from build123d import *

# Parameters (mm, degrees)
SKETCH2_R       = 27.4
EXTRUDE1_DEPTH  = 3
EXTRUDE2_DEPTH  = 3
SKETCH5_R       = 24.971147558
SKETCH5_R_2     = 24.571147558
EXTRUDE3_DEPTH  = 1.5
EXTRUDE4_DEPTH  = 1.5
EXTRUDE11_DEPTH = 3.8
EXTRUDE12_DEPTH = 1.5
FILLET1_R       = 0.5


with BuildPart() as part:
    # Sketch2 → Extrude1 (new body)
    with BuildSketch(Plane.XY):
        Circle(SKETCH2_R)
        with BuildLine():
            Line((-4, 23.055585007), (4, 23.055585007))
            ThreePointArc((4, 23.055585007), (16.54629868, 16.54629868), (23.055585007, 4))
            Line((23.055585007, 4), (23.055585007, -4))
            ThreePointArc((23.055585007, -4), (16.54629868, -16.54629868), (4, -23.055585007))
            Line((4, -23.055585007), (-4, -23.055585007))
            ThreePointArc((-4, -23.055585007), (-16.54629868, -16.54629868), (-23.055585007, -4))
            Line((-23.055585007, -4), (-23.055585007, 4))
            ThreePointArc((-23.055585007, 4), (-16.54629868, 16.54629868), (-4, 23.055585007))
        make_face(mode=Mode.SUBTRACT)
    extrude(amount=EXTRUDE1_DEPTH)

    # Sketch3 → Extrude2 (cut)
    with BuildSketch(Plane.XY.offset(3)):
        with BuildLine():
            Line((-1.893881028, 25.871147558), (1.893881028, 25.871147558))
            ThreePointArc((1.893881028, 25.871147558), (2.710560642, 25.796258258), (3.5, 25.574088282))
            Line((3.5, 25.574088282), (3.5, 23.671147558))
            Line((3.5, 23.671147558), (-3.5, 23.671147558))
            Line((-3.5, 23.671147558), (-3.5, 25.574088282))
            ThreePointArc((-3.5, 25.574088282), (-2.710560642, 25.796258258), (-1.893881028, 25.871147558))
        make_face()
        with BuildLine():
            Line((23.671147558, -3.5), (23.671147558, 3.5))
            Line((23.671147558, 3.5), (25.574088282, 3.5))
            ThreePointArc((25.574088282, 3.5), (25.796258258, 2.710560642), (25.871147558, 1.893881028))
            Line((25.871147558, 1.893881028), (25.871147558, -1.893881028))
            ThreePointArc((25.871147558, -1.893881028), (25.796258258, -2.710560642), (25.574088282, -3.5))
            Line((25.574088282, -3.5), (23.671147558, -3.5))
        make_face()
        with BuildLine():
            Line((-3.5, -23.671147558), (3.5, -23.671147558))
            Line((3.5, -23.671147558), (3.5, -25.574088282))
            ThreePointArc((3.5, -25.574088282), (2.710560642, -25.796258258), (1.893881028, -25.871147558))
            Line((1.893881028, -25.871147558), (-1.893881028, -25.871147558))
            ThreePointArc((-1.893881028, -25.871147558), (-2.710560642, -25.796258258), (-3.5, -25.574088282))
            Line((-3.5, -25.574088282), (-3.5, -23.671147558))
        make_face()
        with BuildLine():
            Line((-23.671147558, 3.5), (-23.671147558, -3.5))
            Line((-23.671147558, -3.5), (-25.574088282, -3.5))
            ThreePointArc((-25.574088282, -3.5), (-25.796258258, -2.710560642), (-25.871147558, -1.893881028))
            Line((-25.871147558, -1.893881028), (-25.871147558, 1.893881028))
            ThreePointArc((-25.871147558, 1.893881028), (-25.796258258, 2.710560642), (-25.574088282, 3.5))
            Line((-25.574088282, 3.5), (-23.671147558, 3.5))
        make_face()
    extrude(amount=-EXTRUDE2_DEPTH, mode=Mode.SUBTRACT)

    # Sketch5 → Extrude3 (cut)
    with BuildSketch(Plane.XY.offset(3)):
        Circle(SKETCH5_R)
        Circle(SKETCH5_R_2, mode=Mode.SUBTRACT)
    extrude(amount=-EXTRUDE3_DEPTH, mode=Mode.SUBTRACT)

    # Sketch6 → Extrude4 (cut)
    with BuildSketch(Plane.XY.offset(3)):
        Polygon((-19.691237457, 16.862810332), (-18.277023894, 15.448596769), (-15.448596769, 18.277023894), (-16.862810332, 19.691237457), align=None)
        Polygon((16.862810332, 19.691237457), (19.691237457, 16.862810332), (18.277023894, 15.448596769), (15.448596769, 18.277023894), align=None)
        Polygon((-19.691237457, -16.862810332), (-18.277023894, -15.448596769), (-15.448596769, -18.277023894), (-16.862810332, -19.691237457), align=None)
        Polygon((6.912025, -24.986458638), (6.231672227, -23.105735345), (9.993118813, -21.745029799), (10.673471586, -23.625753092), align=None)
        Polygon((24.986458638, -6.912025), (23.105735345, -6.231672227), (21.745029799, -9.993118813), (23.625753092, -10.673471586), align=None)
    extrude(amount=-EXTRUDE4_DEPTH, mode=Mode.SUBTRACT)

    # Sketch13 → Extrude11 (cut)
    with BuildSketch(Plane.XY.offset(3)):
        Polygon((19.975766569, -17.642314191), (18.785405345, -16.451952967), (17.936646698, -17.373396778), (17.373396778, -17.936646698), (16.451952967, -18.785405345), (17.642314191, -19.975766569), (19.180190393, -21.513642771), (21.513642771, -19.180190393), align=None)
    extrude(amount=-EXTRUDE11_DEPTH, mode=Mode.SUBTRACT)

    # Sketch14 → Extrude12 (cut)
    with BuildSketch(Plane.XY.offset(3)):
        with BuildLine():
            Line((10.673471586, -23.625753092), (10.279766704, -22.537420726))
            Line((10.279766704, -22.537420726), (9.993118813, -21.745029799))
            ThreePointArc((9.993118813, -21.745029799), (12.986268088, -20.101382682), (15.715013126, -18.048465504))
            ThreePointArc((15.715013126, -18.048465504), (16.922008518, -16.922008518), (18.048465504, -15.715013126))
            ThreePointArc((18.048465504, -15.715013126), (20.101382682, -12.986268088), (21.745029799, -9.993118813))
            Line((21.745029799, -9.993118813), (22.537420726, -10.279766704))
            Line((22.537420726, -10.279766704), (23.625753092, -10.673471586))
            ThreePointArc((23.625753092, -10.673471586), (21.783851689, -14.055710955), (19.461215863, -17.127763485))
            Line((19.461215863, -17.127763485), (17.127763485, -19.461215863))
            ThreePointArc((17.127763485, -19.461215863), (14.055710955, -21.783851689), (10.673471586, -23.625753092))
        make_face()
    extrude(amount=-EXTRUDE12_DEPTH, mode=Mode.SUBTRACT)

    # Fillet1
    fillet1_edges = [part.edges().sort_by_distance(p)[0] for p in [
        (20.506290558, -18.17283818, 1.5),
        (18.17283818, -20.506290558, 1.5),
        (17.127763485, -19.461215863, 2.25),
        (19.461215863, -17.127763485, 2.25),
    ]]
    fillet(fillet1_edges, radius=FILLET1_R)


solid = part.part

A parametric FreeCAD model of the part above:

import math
import FreeCAD as App
import Part
import Sketcher
Q = App.Units.Quantity


def edges_at(feature, points):
    """Names of the edges that pass closest to the given points."""
    edges = feature.Shape.Edges
    near = lambda p: min(range(len(edges)), key=lambda i: edges[i].distToShape(Part.Vertex(*p))[0])
    return sorted({f"Edge{near(p) + 1}" for p in points})

doc = App.newDocument("Part")
params = doc.addObject("Spreadsheet::Sheet", "Params")
for row, (alias, value) in enumerate([
    ("sketch1_diameter", "54.8 mm"),
    ("sketch1_radius", "23.4 mm"),
    ("sketch1_width", "8 mm"),
    ("pad1_length", "3 mm"),
    ("sketch2_width", "7 mm"),
    ("pocket1_length", "3 mm"),
    ("pocket2_length", "1.5 mm"),
    ("sketch4_length", "2 mm"),
    ("sketch4_length2", "4 mm"),
    ("pocket3_length", "1.5 mm"),
    ("sketch5_length", "3.3 mm"),
    ("pocket4_length", "3.8 mm"),
    ("sketch6_length", "3.3 mm"),
    ("pocket5_length", "1.5 mm"),
    ("fillet_radius", "0.5 mm"),
], start=1):
    params.set(f"A{row}", alias)
    params.set(f"B{row}", "=" + value)
    params.setAlias(f"B{row}", alias)

body = doc.addObject("PartDesign::Body", "Body")

# Sketch on XY plane
sketch1 = body.newObject("Sketcher::SketchObject", "Sketch")
sketch1.AttachmentSupport = (doc.getObject("XY_Plane"), [""])
sketch1.MapMode = "FlatFace"
sketch1.addGeometry(Part.Circle(App.Vector(0, 0, 0), App.Vector(0, 0, 1), 27), False)
sketch1.addGeometry(Part.ArcOfCircle(Part.Circle(App.Vector(0, 0, 0), App.Vector(0, 0, 1), 23), math.radians(100), math.radians(170)), False)
sketch1.addGeometry(Part.LineSegment(App.Vector(-4, 23, 0), App.Vector(4, 23, 0)), False)
sketch1.addGeometry(Part.ArcOfCircle(Part.Circle(App.Vector(0, 0, 0), App.Vector(0, 0, 1), 23), math.radians(10), math.radians(80)), False)
sketch1.addGeometry(Part.LineSegment(App.Vector(23, 4, 0), App.Vector(23, -4, 0)), False)
sketch1.addGeometry(Part.ArcOfCircle(Part.Circle(App.Vector(0, 0, 0), App.Vector(0, 0, 1), 23), math.radians(-80), math.radians(-10)), False)
sketch1.addGeometry(Part.LineSegment(App.Vector(4, -23, 0), App.Vector(-4, -23, 0)), False)
sketch1.addGeometry(Part.ArcOfCircle(Part.Circle(App.Vector(0, 0, 0), App.Vector(0, 0, 1), 23), math.radians(-170), math.radians(-100)), False)
sketch1.addGeometry(Part.LineSegment(App.Vector(-23, -4, 0), App.Vector(-23, 4, 0)), False)
sketch1.addConstraint(Sketcher.Constraint("Coincident", 1, 1, 2, 1))
sketch1.addConstraint(Sketcher.Constraint("Coincident", 2, 2, 3, 2))
sketch1.addConstraint(Sketcher.Constraint("Coincident", 3, 1, 4, 1))
sketch1.addConstraint(Sketcher.Constraint("Coincident", 4, 2, 5, 2))
sketch1.addConstraint(Sketcher.Constraint("Coincident", 5, 1, 6, 1))
sketch1.addConstraint(Sketcher.Constraint("Coincident", 6, 2, 7, 2))
sketch1.addConstraint(Sketcher.Constraint("Coincident", 7, 1, 8, 1))
sketch1.addConstraint(Sketcher.Constraint("Coincident", 8, 2, 1, 2))
sketch1.addConstraint(Sketcher.Constraint("Horizontal", 2))
sketch1.addConstraint(Sketcher.Constraint("Vertical", 4))
sketch1.addConstraint(Sketcher.Constraint("Horizontal", 6))
sketch1.addConstraint(Sketcher.Constraint("Vertical", 8))
sketch1.addConstraint(Sketcher.Constraint("Coincident", 0, 3, -1, 1))
sketch1.addConstraint(Sketcher.Constraint("Coincident", 1, 3, -1, 1))
sketch1.addConstraint(Sketcher.Constraint("Coincident", 3, 3, -1, 1))
sketch1.addConstraint(Sketcher.Constraint("Coincident", 5, 3, -1, 1))
sketch1.addConstraint(Sketcher.Constraint("Coincident", 7, 3, -1, 1))
sketch1.addConstraint(Sketcher.Constraint("Equal", 1, 3))
sketch1.addConstraint(Sketcher.Constraint("Equal", 3, 5))
sketch1.addConstraint(Sketcher.Constraint("Equal", 5, 7))
sketch1.addConstraint(Sketcher.Constraint("Horizontal", 4, 2, 7, 1))
sketch1.addConstraint(Sketcher.Constraint("Vertical", 2, 2, 5, 1))
sketch1.addConstraint(Sketcher.Constraint("Equal", 6, 4))
sketch1.addConstraint(Sketcher.Constraint("Diameter", 0, Q("54.8 mm")))
sketch1.addConstraint(Sketcher.Constraint("Radius", 1, Q("23.4 mm")))
sketch1.addConstraint(Sketcher.Constraint("DistanceX", 2, 1, 2, 2, Q("8 mm")))
sketch1.setExpression("Constraints[23]", "Params.sketch1_diameter")
sketch1.setExpression("Constraints[24]", "Params.sketch1_radius")
sketch1.setExpression("Constraints[25]", "Params.sketch1_width")
pad1 = body.newObject("PartDesign::Pad", "Pad")
pad1.Profile = sketch1
pad1.setExpression("Length", "Params.pad1_length")

# Sketch on XY plane
sketch2 = body.newObject("Sketcher::SketchObject", "Sketch001")
sketch2.AttachmentSupport = (doc.getObject("XY_Plane"), [""])
sketch2.MapMode = "FlatFace"
sketch2.AttachmentOffset = App.Placement(App.Vector(0, 0, 3), App.Rotation())
sketch2.addGeometry(Part.LineSegment(App.Vector(1.9, 25.9, 0), App.Vector(-1.9, 25.9, 0)), False)
sketch2.addGeometry(Part.ArcOfCircle(Part.Circle(App.Vector(-1.9, 21.4, 0), App.Vector(0, 0, 1), 4.5), math.radians(90), math.radians(111)), False)
sketch2.addGeometry(Part.LineSegment(App.Vector(-3.5, 25.6, 0), App.Vector(-3.5, 23.7, 0)), False)
sketch2.addGeometry(Part.LineSegment(App.Vector(-3.5, 23.7, 0), App.Vector(3.5, 23.7, 0)), False)
sketch2.addGeometry(Part.LineSegment(App.Vector(3.5, 23.7, 0), App.Vector(3.5, 25.6, 0)), False)
sketch2.addGeometry(Part.ArcOfCircle(Part.Circle(App.Vector(1.9, 21.4, 0), App.Vector(0, 0, 1), 4.5), math.radians(69), math.radians(90)), False)
sketch2.addGeometry(Part.LineSegment(App.Vector(23.7, 3.5, 0), App.Vector(23.7, -3.5, 0)), False)
sketch2.addGeometry(Part.LineSegment(App.Vector(23.7, -3.5, 0), App.Vector(25.6, -3.5, 0)), False)
sketch2.addGeometry(Part.ArcOfCircle(Part.Circle(App.Vector(21.4, -1.9, 0), App.Vector(0, 0, 1), 4.5), math.radians(-21), math.radians(0)), False)
sketch2.addGeometry(Part.LineSegment(App.Vector(25.9, -1.9, 0), App.Vector(25.9, 1.9, 0)), False)
sketch2.addGeometry(Part.ArcOfCircle(Part.Circle(App.Vector(21.4, 1.9, 0), App.Vector(0, 0, 1), 4.5), math.radians(0), math.radians(21)), False)
sketch2.addGeometry(Part.LineSegment(App.Vector(25.6, 3.5, 0), App.Vector(23.7, 3.5, 0)), False)
sketch2.addGeometry(Part.LineSegment(App.Vector(3.5, -23.7, 0), App.Vector(-3.5, -23.7, 0)), False)
sketch2.addGeometry(Part.LineSegment(App.Vector(-3.5, -23.7, 0), App.Vector(-3.5, -25.6, 0)), False)
sketch2.addGeometry(Part.ArcOfCircle(Part.Circle(App.Vector(-1.9, -21.4, 0), App.Vector(0, 0, 1), 4.5), math.radians(-111), math.radians(-90)), False)
sketch2.addGeometry(Part.LineSegment(App.Vector(-1.9, -25.9, 0), App.Vector(1.9, -25.9, 0)), False)
sketch2.addGeometry(Part.ArcOfCircle(Part.Circle(App.Vector(1.9, -21.4, 0), App.Vector(0, 0, 1), 4.5), math.radians(-90), math.radians(-69)), False)
sketch2.addGeometry(Part.LineSegment(App.Vector(3.5, -25.6, 0), App.Vector(3.5, -23.7, 0)), False)
sketch2.addGeometry(Part.LineSegment(App.Vector(-23.7, -3.5, 0), App.Vector(-23.7, 3.5, 0)), False)
sketch2.addGeometry(Part.LineSegment(App.Vector(-23.7, 3.5, 0), App.Vector(-25.6, 3.5, 0)), False)
sketch2.addGeometry(Part.ArcOfCircle(Part.Circle(App.Vector(-21.4, 1.9, 0), App.Vector(0, 0, 1), 4.5), math.radians(159), math.radians(180)), False)
sketch2.addGeometry(Part.LineSegment(App.Vector(-25.9, 1.9, 0), App.Vector(-25.9, -1.9, 0)), False)
sketch2.addGeometry(Part.ArcOfCircle(Part.Circle(App.Vector(-21.4, -1.9, 0), App.Vector(0, 0, 1), 4.5), math.radians(180), math.radians(201)), False)
sketch2.addGeometry(Part.LineSegment(App.Vector(-25.6, -3.5, 0), App.Vector(-23.7, -3.5, 0)), False)
sketch2.addConstraint(Sketcher.Constraint("Tangent", 0, 2, 1, 1))
sketch2.addConstraint(Sketcher.Constraint("Coincident", 1, 2, 2, 1))
sketch2.addConstraint(Sketcher.Constraint("Coincident", 2, 2, 3, 1))
sketch2.addConstraint(Sketcher.Constraint("Coincident", 3, 2, 4, 1))
sketch2.addConstraint(Sketcher.Constraint("Coincident", 4, 2, 5, 1))
sketch2.addConstraint(Sketcher.Constraint("Tangent", 5, 2, 0, 1))
sketch2.addConstraint(Sketcher.Constraint("Coincident", 6, 2, 7, 1))
sketch2.addConstraint(Sketcher.Constraint("Coincident", 7, 2, 8, 1))
sketch2.addConstraint(Sketcher.Constraint("Tangent", 8, 2, 9, 1))
sketch2.addConstraint(Sketcher.Constraint("Tangent", 9, 2, 10, 1))
sketch2.addConstraint(Sketcher.Constraint("Coincident", 10, 2, 11, 1))
sketch2.addConstraint(Sketcher.Constraint("Coincident", 11, 2, 6, 1))
sketch2.addConstraint(Sketcher.Constraint("Coincident", 12, 2, 13, 1))
sketch2.addConstraint(Sketcher.Constraint("Coincident", 13, 2, 14, 1))
sketch2.addConstraint(Sketcher.Constraint("Tangent", 14, 2, 15, 1))
sketch2.addConstraint(Sketcher.Constraint("Tangent", 15, 2, 16, 1))
sketch2.addConstraint(Sketcher.Constraint("Coincident", 16, 2, 17, 1))
sketch2.addConstraint(Sketcher.Constraint("Coincident", 17, 2, 12, 1))
sketch2.addConstraint(Sketcher.Constraint("Coincident", 18, 2, 19, 1))
sketch2.addConstraint(Sketcher.Constraint("Coincident", 19, 2, 20, 1))
sketch2.addConstraint(Sketcher.Constraint("Tangent", 20, 2, 21, 1))
sketch2.addConstraint(Sketcher.Constraint("Tangent", 21, 2, 22, 1))
sketch2.addConstraint(Sketcher.Constraint("Coincident", 22, 2, 23, 1))
sketch2.addConstraint(Sketcher.Constraint("Coincident", 23, 2, 18, 1))
sketch2.addConstraint(Sketcher.Constraint("Horizontal", 0))
sketch2.addConstraint(Sketcher.Constraint("Vertical", 2))
sketch2.addConstraint(Sketcher.Constraint("Horizontal", 3))
sketch2.addConstraint(Sketcher.Constraint("Vertical", 4))
sketch2.addConstraint(Sketcher.Constraint("Vertical", 6))
sketch2.addConstraint(Sketcher.Constraint("Horizontal", 7))
sketch2.addConstraint(Sketcher.Constraint("Vertical", 9))
sketch2.addConstraint(Sketcher.Constraint("Horizontal", 11))
sketch2.addConstraint(Sketcher.Constraint("Horizontal", 12))
sketch2.addConstraint(Sketcher.Constraint("Vertical", 13))
sketch2.addConstraint(Sketcher.Constraint("Horizontal", 15))
sketch2.addConstraint(Sketcher.Constraint("Vertical", 17))
sketch2.addConstraint(Sketcher.Constraint("Vertical", 18))
sketch2.addConstraint(Sketcher.Constraint("Horizontal", 19))
sketch2.addConstraint(Sketcher.Constraint("Vertical", 21))
sketch2.addConstraint(Sketcher.Constraint("Horizontal", 23))
sketch2.addConstraint(Sketcher.Constraint("Equal", 1, 5))
sketch2.addConstraint(Sketcher.Constraint("Equal", 5, 8))
sketch2.addConstraint(Sketcher.Constraint("Equal", 8, 10))
sketch2.addConstraint(Sketcher.Constraint("Equal", 10, 14))
sketch2.addConstraint(Sketcher.Constraint("Equal", 14, 16))
sketch2.addConstraint(Sketcher.Constraint("Equal", 16, 20))
sketch2.addConstraint(Sketcher.Constraint("Equal", 20, 22))
sketch2.addConstraint(Sketcher.Constraint("Symmetric", 5, 3, 14, 3, -1, 1))
sketch2.addConstraint(Sketcher.Constraint("Symmetric", 8, 3, 20, 3, -1, 1))
sketch2.addConstraint(Sketcher.Constraint("Symmetric", 3, 2, 12, 2, -1, 1))
sketch2.addConstraint(Sketcher.Constraint("Symmetric", 1, 2, 16, 2, -1, 1))
sketch2.addConstraint(Sketcher.Constraint("Symmetric", 6, 2, 18, 2, -1, 1))
sketch2.addConstraint(Sketcher.Constraint("Symmetric", 10, 2, 22, 2, -1, 1))
sketch2.addConstraint(Sketcher.Constraint("Symmetric", 1, 2, 4, 2, -2))
sketch2.addConstraint(Sketcher.Constraint("Symmetric", 10, 2, 19, 2, -2))
sketch2.addConstraint(Sketcher.Constraint("Equal", 23, 2))
sketch2.addConstraint(Sketcher.Constraint("Equal", 12, 6))
sketch2.addConstraint(Sketcher.Constraint("Equal", 15, 9))
sketch2.addConstraint(Sketcher.Constraint("DistanceX", 3, 1, 3, 2, Q("7 mm")))
sketch2.addConstraint(Sketcher.Constraint("DistanceY", 2, 2, 0, 2, Q("2.2 mm")))
sketch2.addConstraint(Sketcher.Constraint("Radius", 1, Q("4.490455 mm")))
sketch2.addConstraint(Sketcher.Constraint("DistanceX", 7, 1, 7, 2, Q("1.902941 mm")))
sketch2.addConstraint(Sketcher.Constraint("DistanceY", -1, 1, 1, 2, Q("25.574088 mm")))
sketch2.addConstraint(Sketcher.Constraint("DistanceX", -1, 1, 7, 2, Q("25.574088 mm")))
sketch2.setExpression("Constraints[58]", "Params.sketch2_width")
pocket1 = body.newObject("PartDesign::Pocket", "Pocket")
pocket1.Profile = sketch2
pocket1.setExpression("Length", "Params.pocket1_length")

# Sketch on XY plane
sketch3 = body.newObject("Sketcher::SketchObject", "Sketch002")
sketch3.AttachmentSupport = (doc.getObject("XY_Plane"), [""])
sketch3.MapMode = "FlatFace"
sketch3.AttachmentOffset = App.Placement(App.Vector(0, 0, 3), App.Rotation())
sketch3.addGeometry(Part.Circle(App.Vector(0, 0, 0), App.Vector(0, 0, 1), 25), False)
sketch3.addGeometry(Part.Circle(App.Vector(0, 0, 0), App.Vector(0, 0, 1), 25), False)
sketch3.addConstraint(Sketcher.Constraint("Coincident", 0, 3, -1, 1))
sketch3.addConstraint(Sketcher.Constraint("Coincident", 1, 3, -1, 1))
sketch3.addConstraint(Sketcher.Constraint("Diameter", 0, Q("49.942295 mm")))
sketch3.addConstraint(Sketcher.Constraint("Diameter", 1, Q("49.142295 mm")))
pocket2 = body.newObject("PartDesign::Pocket", "Pocket001")
pocket2.Profile = sketch3
pocket2.setExpression("Length", "Params.pocket2_length")

# Sketch on XY plane
sketch4 = body.newObject("Sketcher::SketchObject", "Sketch003")
sketch4.AttachmentSupport = (doc.getObject("XY_Plane"), [""])
sketch4.MapMode = "FlatFace"
sketch4.AttachmentOffset = App.Placement(App.Vector(0, 0, 3), App.Rotation())
sketch4.addGeometry(Part.LineSegment(App.Vector(-19.7, 16.9, 0), App.Vector(-18.3, 15.4, 0)), False)
sketch4.addGeometry(Part.LineSegment(App.Vector(-18.3, 15.4, 0), App.Vector(-15.4, 18.3, 0)), False)
sketch4.addGeometry(Part.LineSegment(App.Vector(-15.4, 18.3, 0), App.Vector(-16.9, 19.7, 0)), False)
sketch4.addGeometry(Part.LineSegment(App.Vector(-16.9, 19.7, 0), App.Vector(-19.7, 16.9, 0)), False)
sketch4.addGeometry(Part.LineSegment(App.Vector(19.7, 16.9, 0), App.Vector(16.9, 19.7, 0)), False)
sketch4.addGeometry(Part.LineSegment(App.Vector(16.9, 19.7, 0), App.Vector(15.4, 18.3, 0)), False)
sketch4.addGeometry(Part.LineSegment(App.Vector(15.4, 18.3, 0), App.Vector(18.3, 15.4, 0)), False)
sketch4.addGeometry(Part.LineSegment(App.Vector(18.3, 15.4, 0), App.Vector(19.7, 16.9, 0)), False)
sketch4.addGeometry(Part.LineSegment(App.Vector(-18.3, -15.4, 0), App.Vector(-19.7, -16.9, 0)), False)
sketch4.addGeometry(Part.LineSegment(App.Vector(-19.7, -16.9, 0), App.Vector(-16.9, -19.7, 0)), False)
sketch4.addGeometry(Part.LineSegment(App.Vector(-16.9, -19.7, 0), App.Vector(-15.4, -18.3, 0)), False)
sketch4.addGeometry(Part.LineSegment(App.Vector(-15.4, -18.3, 0), App.Vector(-18.3, -15.4, 0)), False)
sketch4.addGeometry(Part.LineSegment(App.Vector(6.2, -23.1, 0), App.Vector(6.9, -25, 0)), False)
sketch4.addGeometry(Part.LineSegment(App.Vector(6.9, -25, 0), App.Vector(10.7, -23.6, 0)), False)
sketch4.addGeometry(Part.LineSegment(App.Vector(10.7, -23.6, 0), App.Vector(10, -21.7, 0)), False)
sketch4.addGeometry(Part.LineSegment(App.Vector(10, -21.7, 0), App.Vector(6.2, -23.1, 0)), False)
sketch4.addGeometry(Part.LineSegment(App.Vector(25, -6.9, 0), App.Vector(23.1, -6.2, 0)), False)
sketch4.addGeometry(Part.LineSegment(App.Vector(23.1, -6.2, 0), App.Vector(21.7, -10, 0)), False)
sketch4.addGeometry(Part.LineSegment(App.Vector(21.7, -10, 0), App.Vector(23.6, -10.7, 0)), False)
sketch4.addGeometry(Part.LineSegment(App.Vector(23.6, -10.7, 0), App.Vector(25, -6.9, 0)), False)
sketch4.addConstraint(Sketcher.Constraint("Coincident", 0, 2, 1, 1))
sketch4.addConstraint(Sketcher.Constraint("Coincident", 1, 2, 2, 1))
sketch4.addConstraint(Sketcher.Constraint("Coincident", 2, 2, 3, 1))
sketch4.addConstraint(Sketcher.Constraint("Coincident", 3, 2, 0, 1))
sketch4.addConstraint(Sketcher.Constraint("Coincident", 4, 2, 5, 1))
sketch4.addConstraint(Sketcher.Constraint("Coincident", 5, 2, 6, 1))
sketch4.addConstraint(Sketcher.Constraint("Coincident", 6, 2, 7, 1))
sketch4.addConstraint(Sketcher.Constraint("Coincident", 7, 2, 4, 1))
sketch4.addConstraint(Sketcher.Constraint("Coincident", 8, 2, 9, 1))
sketch4.addConstraint(Sketcher.Constraint("Coincident", 9, 2, 10, 1))
sketch4.addConstraint(Sketcher.Constraint("Coincident", 10, 2, 11, 1))
sketch4.addConstraint(Sketcher.Constraint("Coincident", 11, 2, 8, 1))
sketch4.addConstraint(Sketcher.Constraint("Coincident", 12, 2, 13, 1))
sketch4.addConstraint(Sketcher.Constraint("Coincident", 13, 2, 14, 1))
sketch4.addConstraint(Sketcher.Constraint("Coincident", 14, 2, 15, 1))
sketch4.addConstraint(Sketcher.Constraint("Coincident", 15, 2, 12, 1))
sketch4.addConstraint(Sketcher.Constraint("Coincident", 16, 2, 17, 1))
sketch4.addConstraint(Sketcher.Constraint("Coincident", 17, 2, 18, 1))
sketch4.addConstraint(Sketcher.Constraint("Coincident", 18, 2, 19, 1))
sketch4.addConstraint(Sketcher.Constraint("Coincident", 19, 2, 16, 1))
sketch4.addConstraint(Sketcher.Constraint("Symmetric", 7, 2, 8, 2, -1, 1))
sketch4.addConstraint(Sketcher.Constraint("Symmetric", 4, 2, 9, 2, -1, 1))
sketch4.addConstraint(Sketcher.Constraint("Symmetric", 5, 2, 10, 2, -1, 1))
sketch4.addConstraint(Sketcher.Constraint("Symmetric", 6, 2, 11, 2, -1, 1))
sketch4.addConstraint(Sketcher.Constraint("Symmetric", 2, 2, 4, 2, -2))
sketch4.addConstraint(Sketcher.Constraint("Symmetric", 1, 2, 5, 2, -2))
sketch4.addConstraint(Sketcher.Constraint("Symmetric", 0, 2, 6, 2, -2))
sketch4.addConstraint(Sketcher.Constraint("Symmetric", 3, 2, 7, 2, -2))
sketch4.addConstraint(Sketcher.Constraint("Perpendicular", 0, 1))
sketch4.addConstraint(Sketcher.Constraint("Perpendicular", 1, 2))
sketch4.addConstraint(Sketcher.Constraint("Perpendicular", 2, 3))
sketch4.addConstraint(Sketcher.Constraint("Perpendicular", 3, 4))
sketch4.addConstraint(Sketcher.Constraint("Perpendicular", 12, 13))
sketch4.addConstraint(Sketcher.Constraint("Perpendicular", 13, 14))
sketch4.addConstraint(Sketcher.Constraint("Perpendicular", 14, 15))
sketch4.addConstraint(Sketcher.Constraint("Perpendicular", 16, 17))
sketch4.addConstraint(Sketcher.Constraint("Perpendicular", 17, 18))
sketch4.addConstraint(Sketcher.Constraint("Perpendicular", 18, 19))
sketch4.addConstraint(Sketcher.Constraint("Equal", 10, 12))
sketch4.addConstraint(Sketcher.Constraint("Equal", 11, 13))
sketch4.addConstraint(Sketcher.Constraint("Equal", 14, 16))
sketch4.addConstraint(Sketcher.Constraint("Equal", 15, 17))
sketch4.addConstraint(Sketcher.Constraint("Distance", 0, Q("2 mm")))
sketch4.addConstraint(Sketcher.Constraint("Distance", 1, Q("4 mm")))
sketch4.addConstraint(Sketcher.Constraint("DistanceX", 12, 2, 6, 2, Q("11.364999 mm")))
sketch4.addConstraint(Sketcher.Constraint("DistanceX", 15, 2, 13, 2, Q("4.441799 mm")))
sketch4.addConstraint(Sketcher.Constraint("DistanceY", 18, 2, 16, 2, Q("4.441799 mm")))
sketch4.addConstraint(Sketcher.Constraint("DistanceX", 2, 2, -1, 1, Q("16.86281 mm")))
sketch4.addConstraint(Sketcher.Constraint("DistanceY", -1, 1, 3, 2, Q("16.86281 mm")))
sketch4.addConstraint(Sketcher.Constraint("DistanceY", 12, 2, -1, 1, Q("24.986459 mm")))
sketch4.addConstraint(Sketcher.Constraint("DistanceX", -1, 1, 17, 2, Q("21.74503 mm")))
sketch4.addConstraint(Sketcher.Constraint("DistanceY", 17, 2, -1, 1, Q("9.993119 mm")))
sketch4.setExpression("Constraints[42]", "Params.sketch4_length")
sketch4.setExpression("Constraints[43]", "Params.sketch4_length2")
pocket3 = body.newObject("PartDesign::Pocket", "Pocket002")
pocket3.Profile = sketch4
pocket3.setExpression("Length", "Params.pocket3_length")

# Sketch on XY plane
sketch5 = body.newObject("Sketcher::SketchObject", "Sketch004")
sketch5.AttachmentSupport = (doc.getObject("XY_Plane"), [""])
sketch5.MapMode = "FlatFace"
sketch5.AttachmentOffset = App.Placement(App.Vector(0, 0, 3), App.Rotation())
sketch5.addGeometry(Part.LineSegment(App.Vector(18.8, -16.5, 0), App.Vector(17.9, -17.4, 0)), False)
sketch5.addGeometry(Part.LineSegment(App.Vector(17.9, -17.4, 0), App.Vector(17.4, -17.9, 0)), False)
sketch5.addGeometry(Part.LineSegment(App.Vector(17.4, -17.9, 0), App.Vector(16.5, -18.8, 0)), False)
sketch5.addGeometry(Part.LineSegment(App.Vector(16.5, -18.8, 0), App.Vector(19.2, -21.5, 0)), False)
sketch5.addGeometry(Part.LineSegment(App.Vector(19.2, -21.5, 0), App.Vector(21.5, -19.2, 0)), False)
sketch5.addGeometry(Part.LineSegment(App.Vector(21.5, -19.2, 0), App.Vector(18.8, -16.5, 0)), False)
sketch5.addConstraint(Sketcher.Constraint("Coincident", 0, 2, 1, 1))
sketch5.addConstraint(Sketcher.Constraint("Coincident", 1, 2, 2, 1))
sketch5.addConstraint(Sketcher.Constraint("Coincident", 2, 2, 3, 1))
sketch5.addConstraint(Sketcher.Constraint("Coincident", 3, 2, 4, 1))
sketch5.addConstraint(Sketcher.Constraint("Coincident", 4, 2, 5, 1))
sketch5.addConstraint(Sketcher.Constraint("Coincident", 5, 2, 0, 1))
sketch5.addConstraint(Sketcher.Constraint("Perpendicular", 1, 3))
sketch5.addConstraint(Sketcher.Constraint("Perpendicular", 3, 4))
sketch5.addConstraint(Sketcher.Constraint("Perpendicular", 4, 5))
sketch5.addConstraint(Sketcher.Constraint("Equal", 0, 2))
sketch5.addConstraint(Sketcher.Constraint("Equal", 3, 5))
sketch5.addConstraint(Sketcher.Constraint("Angle", 1, Q("-135 deg")))
sketch5.addConstraint(Sketcher.Constraint("Distance", 4, Q("3.3 mm")))
sketch5.addConstraint(Sketcher.Constraint("Distance", 3, Q("3.85831 mm")))
sketch5.addConstraint(Sketcher.Constraint("DistanceX", -1, 1, 3, 2, Q("19.18019 mm")))
sketch5.addConstraint(Sketcher.Constraint("DistanceY", 4, 2, -1, 1, Q("19.18019 mm")))
sketch5.addConstraint(Sketcher.Constraint("DistanceX", 1, 2, 0, 2, Q("0.56325 mm")))
sketch5.addConstraint(Sketcher.Constraint("DistanceY", 2, 2, 1, 2, Q("0.848759 mm")))
sketch5.setExpression("Constraints[12]", "Params.sketch5_length")
pocket4 = body.newObject("PartDesign::Pocket", "Pocket003")
pocket4.Profile = sketch5
pocket4.setExpression("Length", "Params.pocket4_length")

# Sketch on XY plane
sketch6 = body.newObject("Sketcher::SketchObject", "Sketch005")
sketch6.AttachmentSupport = (doc.getObject("XY_Plane"), [""])
sketch6.MapMode = "FlatFace"
sketch6.AttachmentOffset = App.Placement(App.Vector(0, 0, 3), App.Rotation())
sketch6.addGeometry(Part.LineSegment(App.Vector(10.3, -22.5, 0), App.Vector(10.7, -23.6, 0)), False)
sketch6.addGeometry(Part.ArcOfCircle(Part.Circle(App.Vector(0, 0, 0), App.Vector(0, 0, 1), 25.9), math.radians(-65.69), math.radians(-48.65)), False)
sketch6.addGeometry(Part.LineSegment(App.Vector(17.1, -19.5, 0), App.Vector(19.5, -17.1, 0)), False)
sketch6.addGeometry(Part.ArcOfCircle(Part.Circle(App.Vector(0, 0, 0), App.Vector(0, 0, 1), 25.9), math.radians(-41.35), math.radians(-24.31)), False)
sketch6.addGeometry(Part.LineSegment(App.Vector(23.6, -10.7, 0), App.Vector(22.5, -10.3, 0)), False)
sketch6.addGeometry(Part.LineSegment(App.Vector(22.5, -10.3, 0), App.Vector(21.7, -10, 0)), False)
sketch6.addGeometry(Part.ArcOfCircle(Part.Circle(App.Vector(0, 0, 0), App.Vector(0, 0, 1), 23.9), math.radians(-41.05), math.radians(-24.68)), False)
sketch6.addGeometry(Part.ArcOfCircle(Part.Circle(App.Vector(0, 0, 0), App.Vector(0, 0, 1), 23.9), math.radians(-48.95), math.radians(-41.05)), False)
sketch6.addGeometry(Part.ArcOfCircle(Part.Circle(App.Vector(0, 0, 0), App.Vector(0, 0, 1), 23.9), math.radians(-65.32), math.radians(-48.95)), False)
sketch6.addGeometry(Part.LineSegment(App.Vector(10, -21.7, 0), App.Vector(10.3, -22.5, 0)), False)
sketch6.addConstraint(Sketcher.Constraint("Coincident", 0, 2, 1, 1))
sketch6.addConstraint(Sketcher.Constraint("Coincident", 1, 2, 2, 1))
sketch6.addConstraint(Sketcher.Constraint("Coincident", 2, 2, 3, 1))
sketch6.addConstraint(Sketcher.Constraint("Coincident", 3, 2, 4, 1))
sketch6.addConstraint(Sketcher.Constraint("Coincident", 4, 2, 5, 1))
sketch6.addConstraint(Sketcher.Constraint("Coincident", 5, 2, 6, 2))
sketch6.addConstraint(Sketcher.Constraint("Tangent", 6, 1, 7, 2))
sketch6.addConstraint(Sketcher.Constraint("Tangent", 7, 1, 8, 2))
sketch6.addConstraint(Sketcher.Constraint("Coincident", 8, 1, 9, 1))
sketch6.addConstraint(Sketcher.Constraint("Coincident", 9, 2, 0, 1))
sketch6.addConstraint(Sketcher.Constraint("Coincident", 1, 3, -1, 1))
sketch6.addConstraint(Sketcher.Constraint("Coincident", 3, 3, -1, 1))
sketch6.addConstraint(Sketcher.Constraint("Coincident", 6, 3, -1, 1))
sketch6.addConstraint(Sketcher.Constraint("Coincident", 8, 3, -1, 1))
sketch6.addConstraint(Sketcher.Constraint("Equal", 1, 3))
sketch6.addConstraint(Sketcher.Constraint("Parallel", 4, 5))
sketch6.addConstraint(Sketcher.Constraint("Parallel", 0, 9))
sketch6.addConstraint(Sketcher.Constraint("Equal", 0, 4))
sketch6.addConstraint(Sketcher.Constraint("Equal", 5, 9))
sketch6.addConstraint(Sketcher.Constraint("Angle", 2, Q("45 deg")))
sketch6.addConstraint(Sketcher.Constraint("Distance", 2, Q("3.3 mm")))
sketch6.addConstraint(Sketcher.Constraint("Radius", 1, Q("25.924876 mm")))
sketch6.addConstraint(Sketcher.Constraint("Radius", 6, Q("23.931334 mm")))
sketch6.addConstraint(Sketcher.Constraint("DistanceX", 9, 2, 6, 1, Q("7.768699 mm")))
sketch6.addConstraint(Sketcher.Constraint("DistanceX", -1, 1, 0, 2, Q("10.673472 mm")))
sketch6.addConstraint(Sketcher.Constraint("DistanceY", 3, 2, -1, 1, Q("10.673472 mm")))
sketch6.addConstraint(Sketcher.Constraint("DistanceX", -1, 1, 4, 2, Q("22.537421 mm")))
sketch6.addConstraint(Sketcher.Constraint("DistanceX", -1, 1, 5, 2, Q("21.74503 mm")))
sketch6.addConstraint(Sketcher.Constraint("DistanceX", 7, 1, 1, 2, Q("1.41275 mm")))
sketch6.setExpression("Constraints[20]", "Params.sketch6_length")
pocket5 = body.newObject("PartDesign::Pocket", "Pocket004")
pocket5.Profile = sketch6
pocket5.setExpression("Length", "Params.pocket5_length")
doc.recompute()

fillet = body.newObject("PartDesign::Fillet", "Fillet")
fillet.Base = (pocket5, edges_at(pocket5, [
    (20.506, -18.173, 1.5),
    (18.173, -20.506, 1.5),
    (17.128, -19.461, 2.25),
    (19.461, -17.128, 2.25),
]))
fillet.setExpression("Radius", "Params.fillet_radius")

doc.recompute()
